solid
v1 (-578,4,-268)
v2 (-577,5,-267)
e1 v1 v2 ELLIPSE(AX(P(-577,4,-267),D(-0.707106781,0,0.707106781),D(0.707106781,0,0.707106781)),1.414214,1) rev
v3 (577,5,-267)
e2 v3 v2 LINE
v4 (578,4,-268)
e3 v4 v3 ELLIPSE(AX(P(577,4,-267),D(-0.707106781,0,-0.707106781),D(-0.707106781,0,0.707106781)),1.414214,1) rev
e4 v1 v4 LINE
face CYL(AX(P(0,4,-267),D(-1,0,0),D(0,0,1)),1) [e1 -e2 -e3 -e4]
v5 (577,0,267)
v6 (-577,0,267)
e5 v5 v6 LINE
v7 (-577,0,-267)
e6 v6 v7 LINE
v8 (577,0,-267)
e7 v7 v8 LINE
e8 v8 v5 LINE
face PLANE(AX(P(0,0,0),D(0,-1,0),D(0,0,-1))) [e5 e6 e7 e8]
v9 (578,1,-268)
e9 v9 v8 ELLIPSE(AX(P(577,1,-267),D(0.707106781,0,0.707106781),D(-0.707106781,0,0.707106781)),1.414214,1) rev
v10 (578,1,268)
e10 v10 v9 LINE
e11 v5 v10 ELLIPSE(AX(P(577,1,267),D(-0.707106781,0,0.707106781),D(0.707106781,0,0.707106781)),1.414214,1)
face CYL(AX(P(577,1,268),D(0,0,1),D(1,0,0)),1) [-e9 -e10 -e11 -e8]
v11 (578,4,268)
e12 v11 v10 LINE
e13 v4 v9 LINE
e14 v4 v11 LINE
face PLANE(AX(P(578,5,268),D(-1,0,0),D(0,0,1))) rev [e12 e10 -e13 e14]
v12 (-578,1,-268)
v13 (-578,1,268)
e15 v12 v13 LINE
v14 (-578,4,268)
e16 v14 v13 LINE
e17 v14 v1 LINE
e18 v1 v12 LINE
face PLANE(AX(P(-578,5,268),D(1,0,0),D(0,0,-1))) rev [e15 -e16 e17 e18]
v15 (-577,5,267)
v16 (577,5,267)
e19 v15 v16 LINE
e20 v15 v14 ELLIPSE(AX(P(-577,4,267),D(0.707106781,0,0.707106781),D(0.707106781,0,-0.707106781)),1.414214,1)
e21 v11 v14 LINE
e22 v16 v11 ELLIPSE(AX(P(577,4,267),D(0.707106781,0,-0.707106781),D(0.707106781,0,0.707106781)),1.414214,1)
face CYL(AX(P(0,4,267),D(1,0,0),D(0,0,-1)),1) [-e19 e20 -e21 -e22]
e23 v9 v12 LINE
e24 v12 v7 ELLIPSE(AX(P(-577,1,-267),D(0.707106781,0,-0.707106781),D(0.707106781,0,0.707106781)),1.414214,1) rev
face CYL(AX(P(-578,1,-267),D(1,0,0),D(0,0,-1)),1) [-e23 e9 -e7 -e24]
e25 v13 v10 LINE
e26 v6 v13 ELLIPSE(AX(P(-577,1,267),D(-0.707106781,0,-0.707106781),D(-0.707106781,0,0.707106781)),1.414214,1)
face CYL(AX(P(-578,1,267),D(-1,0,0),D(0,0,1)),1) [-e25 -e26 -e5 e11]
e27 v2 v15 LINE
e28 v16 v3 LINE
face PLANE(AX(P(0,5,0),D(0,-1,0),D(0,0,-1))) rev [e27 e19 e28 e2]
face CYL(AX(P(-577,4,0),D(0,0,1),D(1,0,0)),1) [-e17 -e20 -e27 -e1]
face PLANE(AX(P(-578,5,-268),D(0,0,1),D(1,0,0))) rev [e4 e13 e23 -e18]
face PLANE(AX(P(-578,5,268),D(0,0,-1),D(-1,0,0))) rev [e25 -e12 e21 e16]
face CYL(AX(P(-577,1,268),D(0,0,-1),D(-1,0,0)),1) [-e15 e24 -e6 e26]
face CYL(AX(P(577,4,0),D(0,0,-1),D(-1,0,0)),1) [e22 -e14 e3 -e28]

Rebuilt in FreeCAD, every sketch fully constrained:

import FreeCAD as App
import Part
import Sketcher
from FreeCAD import Vector


def edges_at(feature, points):
    """Names of the edges that pass closest to the given points."""
    edges = feature.Shape.Edges
    near = lambda p: min(range(len(edges)), key=lambda i: edges[i].distToShape(Part.Vertex(*p))[0])
    return sorted({f"Edge{near(p) + 1}" for p in points})

doc = App.newDocument("Part")
body = doc.addObject("PartDesign::Body", "Body")

sketch1 = body.newObject("Sketcher::SketchObject", "Sketch")
sketch1.AttachmentSupport = (doc.getObject("XZ_Plane"), [""])
sketch1.MapMode = "FlatFace"
sketch1.addGeometry([
    Part.LineSegment(Vector(-578, -268, 0), Vector(-578, 268, 0)),
    Part.LineSegment(Vector(-578, 268, 0), Vector(578, 268, 0)),
    Part.LineSegment(Vector(578, 268, 0), Vector(578, -268, 0)),
    Part.LineSegment(Vector(578, -268, 0), Vector(-578, -268, 0)),
], False)
sketch1.addConstraint([
    Sketcher.Constraint("Coincident", 0, 2, 1, 1),
    Sketcher.Constraint("Coincident", 1, 2, 2, 1),
    Sketcher.Constraint("Coincident", 2, 2, 3, 1),
    Sketcher.Constraint("Coincident", 3, 2, 0, 1),
    Sketcher.Constraint("Vertical", 0),
    Sketcher.Constraint("Horizontal", 1),
    Sketcher.Constraint("Vertical", 2),
    Sketcher.Constraint("Horizontal", 3),
    Sketcher.Constraint("Symmetric", 0, 2, 2, 2, -1, 1),
    Sketcher.Constraint("DistanceX", 1, 1, 1, 2, 1156.0),
    Sketcher.Constraint("DistanceY", 0, 1, 0, 2, 536.0),
])
pad1 = body.newObject("PartDesign::Pad", "Pad")
pad1.Profile = sketch1
pad1.Length = 5
pad1.Reversed = True
doc.recompute()

fillet = body.newObject("PartDesign::Fillet", "Fillet")
fillet.Base = (pad1, edges_at(pad1, [
    (-578, 5, 0),
    (0, 5, 268),
    (578, 5, 0),
    (0, 0, 268),
    (-578, 0, 0),
    (0, 0, -268),
    (578, 0, 0),
    (0, 5, -268),
]))
fillet.Radius = 1

doc.recompute()
